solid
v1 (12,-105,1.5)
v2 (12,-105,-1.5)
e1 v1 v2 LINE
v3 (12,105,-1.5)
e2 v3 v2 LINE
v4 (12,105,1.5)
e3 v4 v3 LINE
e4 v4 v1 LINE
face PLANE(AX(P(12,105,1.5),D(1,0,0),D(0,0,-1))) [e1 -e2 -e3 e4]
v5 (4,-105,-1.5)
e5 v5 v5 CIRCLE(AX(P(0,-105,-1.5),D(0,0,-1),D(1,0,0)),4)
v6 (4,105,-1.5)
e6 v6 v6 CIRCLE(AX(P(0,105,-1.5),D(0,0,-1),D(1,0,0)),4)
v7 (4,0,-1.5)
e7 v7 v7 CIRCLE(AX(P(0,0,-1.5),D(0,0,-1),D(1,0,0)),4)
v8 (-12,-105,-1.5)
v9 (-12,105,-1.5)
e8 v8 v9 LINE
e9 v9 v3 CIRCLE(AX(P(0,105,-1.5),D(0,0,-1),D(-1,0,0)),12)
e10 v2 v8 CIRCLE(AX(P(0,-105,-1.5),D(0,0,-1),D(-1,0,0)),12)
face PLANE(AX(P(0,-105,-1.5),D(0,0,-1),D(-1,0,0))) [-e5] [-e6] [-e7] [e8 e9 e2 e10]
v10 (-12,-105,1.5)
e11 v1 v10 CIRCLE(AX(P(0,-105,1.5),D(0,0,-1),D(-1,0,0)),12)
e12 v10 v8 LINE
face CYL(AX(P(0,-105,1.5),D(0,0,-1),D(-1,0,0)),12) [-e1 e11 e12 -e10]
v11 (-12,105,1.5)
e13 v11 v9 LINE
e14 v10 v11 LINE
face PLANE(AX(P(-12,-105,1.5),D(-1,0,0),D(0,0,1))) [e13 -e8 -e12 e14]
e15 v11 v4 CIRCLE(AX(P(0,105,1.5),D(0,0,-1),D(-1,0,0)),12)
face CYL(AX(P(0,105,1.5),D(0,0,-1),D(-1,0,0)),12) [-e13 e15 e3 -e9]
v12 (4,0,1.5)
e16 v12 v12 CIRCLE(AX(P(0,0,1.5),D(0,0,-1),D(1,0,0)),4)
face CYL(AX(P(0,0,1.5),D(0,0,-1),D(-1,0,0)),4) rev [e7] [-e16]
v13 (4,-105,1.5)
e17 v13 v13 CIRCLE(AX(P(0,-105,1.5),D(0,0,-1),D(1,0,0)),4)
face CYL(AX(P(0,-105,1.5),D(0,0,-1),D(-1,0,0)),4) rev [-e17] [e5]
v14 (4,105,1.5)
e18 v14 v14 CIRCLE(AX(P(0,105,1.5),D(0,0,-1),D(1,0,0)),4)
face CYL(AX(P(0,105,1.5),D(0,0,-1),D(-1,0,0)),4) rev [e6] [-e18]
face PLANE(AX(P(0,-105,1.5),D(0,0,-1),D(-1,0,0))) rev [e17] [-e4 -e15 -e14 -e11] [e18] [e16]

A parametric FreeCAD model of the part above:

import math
import FreeCAD as App
import Part
import Sketcher
from FreeCAD import Vector

doc = App.newDocument("Part")
body = doc.addObject("PartDesign::Body", "Body")

# Sketch on XY plane
sketch1 = doc.addObject("Sketcher::SketchObject", "Sketch")
body.addObject(sketch1)
sketch1.AttachmentSupport = (doc.XY_Plane, [""])
sketch1.MapMode = "FlatFace"
sketch1.AttachmentOffset = App.Placement(Vector(0, 0, -1.5), App.Rotation())
sketch1.addGeometry(Part.LineSegment(Vector(-12, -105, 0), Vector(-12, 105, 0)), False)
sketch1.addGeometry(Part.ArcOfCircle(Part.Circle(Vector(0, 105, 0), Vector(0, 0, 1), 12), math.radians(0), math.radians(180)), False)
sketch1.addGeometry(Part.LineSegment(Vector(12, 105, 0), Vector(12, -105, 0)), False)
sketch1.addGeometry(Part.ArcOfCircle(Part.Circle(Vector(0, -105, 0), Vector(0, 0, 1), 12), math.radians(180), math.radians(360)), False)
sketch1.addGeometry(Part.Circle(Vector(0, -105, 0), Vector(0, 0, 1), 4), False)
sketch1.addGeometry(Part.Circle(Vector(0, 0, 0), Vector(0, 0, 1), 4), False)
sketch1.addGeometry(Part.Circle(Vector(0, 105, 0), Vector(0, 0, 1), 4), False)
sketch1.addConstraint(Sketcher.Constraint("Tangent", 0, 2, 1, 2))
sketch1.addConstraint(Sketcher.Constraint("Tangent", 1, 1, 2, 1))
sketch1.addConstraint(Sketcher.Constraint("Tangent", 2, 2, 3, 2))
sketch1.addConstraint(Sketcher.Constraint("Tangent", 3, 1, 0, 1))
sketch1.addConstraint(Sketcher.Constraint("Vertical", 0))
sketch1.addConstraint(Sketcher.Constraint("Vertical", 2))
sketch1.addConstraint(Sketcher.Constraint("Coincident", 5, 3, -1, 1))
sketch1.addConstraint(Sketcher.Constraint("Coincident", 4, 3, 3, 3))
sketch1.addConstraint(Sketcher.Constraint("Coincident", 6, 3, 1, 3))
sketch1.addConstraint(Sketcher.Constraint("Equal", 4, 5))
sketch1.addConstraint(Sketcher.Constraint("Equal", 5, 6))
sketch1.addConstraint(Sketcher.Constraint("Symmetric", 1, 3, 3, 3, -1, 1))
sketch1.addConstraint(Sketcher.Constraint("Diameter", 4, 8.0))
sketch1.addConstraint(Sketcher.Constraint("Radius", 1, 12.0))
sketch1.addConstraint(Sketcher.Constraint("DistanceY", 0, 1, 0, 2, 210.0))
pad1 = doc.addObject("PartDesign::Pad", "Pad")
body.addObject(pad1)
pad1.Profile = sketch1
pad1.Length = 3

doc.recompute()
